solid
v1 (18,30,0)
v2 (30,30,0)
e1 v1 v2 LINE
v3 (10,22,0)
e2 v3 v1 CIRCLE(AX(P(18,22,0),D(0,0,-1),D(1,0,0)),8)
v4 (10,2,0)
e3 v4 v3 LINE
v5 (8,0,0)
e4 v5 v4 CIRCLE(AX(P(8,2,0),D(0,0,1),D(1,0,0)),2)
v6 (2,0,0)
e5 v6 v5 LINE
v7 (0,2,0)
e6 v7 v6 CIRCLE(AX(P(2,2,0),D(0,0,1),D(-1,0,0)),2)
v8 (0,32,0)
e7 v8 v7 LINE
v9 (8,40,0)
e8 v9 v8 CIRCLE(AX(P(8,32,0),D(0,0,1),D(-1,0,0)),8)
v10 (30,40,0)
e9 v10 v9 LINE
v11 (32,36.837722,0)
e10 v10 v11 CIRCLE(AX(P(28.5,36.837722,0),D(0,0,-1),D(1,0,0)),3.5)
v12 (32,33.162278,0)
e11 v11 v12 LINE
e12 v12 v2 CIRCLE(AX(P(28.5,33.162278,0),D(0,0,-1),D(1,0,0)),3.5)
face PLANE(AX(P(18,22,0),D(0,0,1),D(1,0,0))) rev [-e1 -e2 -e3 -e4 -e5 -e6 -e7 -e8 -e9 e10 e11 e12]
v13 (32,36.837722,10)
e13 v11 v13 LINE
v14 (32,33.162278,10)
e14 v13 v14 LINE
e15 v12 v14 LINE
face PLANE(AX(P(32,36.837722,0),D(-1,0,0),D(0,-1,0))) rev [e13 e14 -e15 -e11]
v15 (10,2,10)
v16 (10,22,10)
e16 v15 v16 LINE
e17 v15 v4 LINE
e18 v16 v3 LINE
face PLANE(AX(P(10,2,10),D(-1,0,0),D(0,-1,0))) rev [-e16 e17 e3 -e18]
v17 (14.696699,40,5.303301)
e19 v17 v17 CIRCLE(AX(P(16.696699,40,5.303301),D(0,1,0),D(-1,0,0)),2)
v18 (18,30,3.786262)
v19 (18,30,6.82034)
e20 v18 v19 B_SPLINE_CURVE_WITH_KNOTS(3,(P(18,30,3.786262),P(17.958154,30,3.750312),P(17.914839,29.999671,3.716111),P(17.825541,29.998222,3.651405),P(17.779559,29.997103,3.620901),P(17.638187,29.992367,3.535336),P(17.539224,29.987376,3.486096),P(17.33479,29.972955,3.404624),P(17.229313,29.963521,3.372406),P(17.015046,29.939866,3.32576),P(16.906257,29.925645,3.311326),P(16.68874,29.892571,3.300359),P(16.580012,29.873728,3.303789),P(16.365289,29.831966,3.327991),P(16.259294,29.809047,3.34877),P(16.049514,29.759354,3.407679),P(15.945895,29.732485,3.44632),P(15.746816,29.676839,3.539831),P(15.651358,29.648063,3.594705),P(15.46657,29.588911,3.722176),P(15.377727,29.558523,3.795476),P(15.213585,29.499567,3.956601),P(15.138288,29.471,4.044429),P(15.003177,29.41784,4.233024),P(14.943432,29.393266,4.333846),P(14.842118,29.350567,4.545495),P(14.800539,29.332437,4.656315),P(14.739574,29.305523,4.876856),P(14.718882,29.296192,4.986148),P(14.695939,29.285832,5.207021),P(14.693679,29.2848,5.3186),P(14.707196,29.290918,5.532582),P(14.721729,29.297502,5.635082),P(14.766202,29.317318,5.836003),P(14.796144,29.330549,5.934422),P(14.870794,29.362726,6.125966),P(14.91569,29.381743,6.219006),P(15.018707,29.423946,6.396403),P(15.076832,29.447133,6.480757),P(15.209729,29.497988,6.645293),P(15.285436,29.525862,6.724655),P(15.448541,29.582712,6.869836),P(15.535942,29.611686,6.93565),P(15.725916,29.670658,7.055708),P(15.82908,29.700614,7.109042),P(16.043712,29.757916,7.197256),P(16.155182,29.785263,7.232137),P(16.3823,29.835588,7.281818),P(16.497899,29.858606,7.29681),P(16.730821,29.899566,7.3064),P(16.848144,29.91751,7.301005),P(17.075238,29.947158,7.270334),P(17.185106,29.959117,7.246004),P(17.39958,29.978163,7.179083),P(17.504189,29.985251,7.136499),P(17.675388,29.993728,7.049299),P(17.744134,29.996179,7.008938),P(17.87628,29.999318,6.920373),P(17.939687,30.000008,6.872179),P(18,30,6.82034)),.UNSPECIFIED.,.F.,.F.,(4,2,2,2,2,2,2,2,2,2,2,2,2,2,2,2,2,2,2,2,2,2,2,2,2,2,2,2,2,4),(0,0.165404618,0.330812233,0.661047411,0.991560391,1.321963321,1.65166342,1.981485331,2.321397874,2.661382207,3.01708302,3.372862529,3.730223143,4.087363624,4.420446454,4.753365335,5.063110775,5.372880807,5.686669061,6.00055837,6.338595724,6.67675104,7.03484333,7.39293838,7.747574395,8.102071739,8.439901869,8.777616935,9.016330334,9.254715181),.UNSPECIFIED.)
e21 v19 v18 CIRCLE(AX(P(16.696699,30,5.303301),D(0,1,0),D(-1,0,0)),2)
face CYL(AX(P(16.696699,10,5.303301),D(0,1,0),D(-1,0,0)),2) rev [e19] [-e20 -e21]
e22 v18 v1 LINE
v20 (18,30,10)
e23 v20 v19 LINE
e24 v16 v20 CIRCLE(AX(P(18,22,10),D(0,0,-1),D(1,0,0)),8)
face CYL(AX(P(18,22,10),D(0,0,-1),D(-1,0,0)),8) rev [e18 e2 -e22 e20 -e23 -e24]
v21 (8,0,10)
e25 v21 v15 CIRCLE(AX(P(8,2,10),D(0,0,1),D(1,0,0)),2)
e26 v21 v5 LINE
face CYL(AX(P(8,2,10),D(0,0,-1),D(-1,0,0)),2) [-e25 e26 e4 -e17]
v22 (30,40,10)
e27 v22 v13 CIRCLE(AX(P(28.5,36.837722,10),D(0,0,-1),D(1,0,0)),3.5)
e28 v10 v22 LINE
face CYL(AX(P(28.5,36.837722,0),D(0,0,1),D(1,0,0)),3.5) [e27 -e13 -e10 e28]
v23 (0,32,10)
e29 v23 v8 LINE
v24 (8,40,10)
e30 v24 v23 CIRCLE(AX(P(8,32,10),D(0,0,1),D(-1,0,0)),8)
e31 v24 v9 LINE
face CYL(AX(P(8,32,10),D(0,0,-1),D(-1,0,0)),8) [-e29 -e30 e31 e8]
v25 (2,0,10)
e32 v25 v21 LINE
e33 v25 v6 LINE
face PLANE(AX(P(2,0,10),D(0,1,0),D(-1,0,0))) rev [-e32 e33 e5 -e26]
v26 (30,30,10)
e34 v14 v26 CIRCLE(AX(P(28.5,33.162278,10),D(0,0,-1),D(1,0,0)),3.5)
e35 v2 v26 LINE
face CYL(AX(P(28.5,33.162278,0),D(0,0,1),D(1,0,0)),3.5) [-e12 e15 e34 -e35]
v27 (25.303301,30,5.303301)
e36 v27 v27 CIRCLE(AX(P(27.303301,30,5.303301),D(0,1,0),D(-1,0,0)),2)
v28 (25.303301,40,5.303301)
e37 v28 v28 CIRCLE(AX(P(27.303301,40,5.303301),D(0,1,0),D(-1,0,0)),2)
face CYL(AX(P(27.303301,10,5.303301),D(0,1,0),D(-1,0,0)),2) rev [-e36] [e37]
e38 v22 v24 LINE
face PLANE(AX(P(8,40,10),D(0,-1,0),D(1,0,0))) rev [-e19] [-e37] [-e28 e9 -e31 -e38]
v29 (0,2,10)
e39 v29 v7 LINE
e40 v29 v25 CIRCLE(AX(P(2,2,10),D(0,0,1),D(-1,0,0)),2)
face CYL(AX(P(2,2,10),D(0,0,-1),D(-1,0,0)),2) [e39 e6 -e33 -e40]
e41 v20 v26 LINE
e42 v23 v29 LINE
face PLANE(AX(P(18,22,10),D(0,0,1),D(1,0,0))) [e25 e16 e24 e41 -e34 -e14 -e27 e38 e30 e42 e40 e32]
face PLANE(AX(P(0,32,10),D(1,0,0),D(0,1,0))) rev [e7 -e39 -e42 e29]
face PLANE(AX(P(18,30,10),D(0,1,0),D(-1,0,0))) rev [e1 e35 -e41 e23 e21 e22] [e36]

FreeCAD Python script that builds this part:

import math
import FreeCAD as App
import Part
import Sketcher

doc = App.newDocument("Part")
body = doc.addObject("PartDesign::Body", "Body")

# Sketch on XY plane
sketch1 = doc.addObject("Sketcher::SketchObject", "Sketch")
body.addObject(sketch1)
sketch1.AttachmentSupport = (doc.XY_Plane, [""])
sketch1.MapMode = "FlatFace"
sketch1.addGeometry(Part.LineSegment(App.Vector(2, 0, 0), App.Vector(8, 0, 0)), False)
sketch1.addGeometry(Part.ArcOfCircle(Part.Circle(App.Vector(8, 2, 0), App.Vector(0, 0, 1), 2), math.radians(-90), math.radians(0)), False)
sketch1.addGeometry(Part.LineSegment(App.Vector(10, 2, 0), App.Vector(10, 22, 0)), False)
sketch1.addGeometry(Part.ArcOfCircle(Part.Circle(App.Vector(18, 22, 0), App.Vector(0, 0, 1), 8), math.radians(90), math.radians(180)), False)
sketch1.addGeometry(Part.LineSegment(App.Vector(18, 30, 0), App.Vector(36, 30, 0)), False)
sketch1.addGeometry(Part.ArcOfCircle(Part.Circle(App.Vector(36, 34, 0), App.Vector(0, 0, 1), 4), math.radians(-90), math.radians(0)), False)
sketch1.addGeometry(Part.LineSegment(App.Vector(40, 34, 0), App.Vector(40, 36, 0)), False)
sketch1.addGeometry(Part.ArcOfCircle(Part.Circle(App.Vector(36, 36, 0), App.Vector(0, 0, 1), 4), math.radians(0), math.radians(90)), False)
sketch1.addGeometry(Part.LineSegment(App.Vector(36, 40, 0), App.Vector(8, 40, 0)), False)
sketch1.addGeometry(Part.ArcOfCircle(Part.Circle(App.Vector(8, 32, 0), App.Vector(0, 0, 1), 8), math.radians(90), math.radians(180)), False)
sketch1.addGeometry(Part.LineSegment(App.Vector(0, 32, 0), App.Vector(0, 2, 0)), False)
sketch1.addGeometry(Part.ArcOfCircle(Part.Circle(App.Vector(2, 2, 0), App.Vector(0, 0, 1), 2), math.radians(-180), math.radians(-90)), False)
sketch1.addConstraint(Sketcher.Constraint("Tangent", 0, 2, 1, 1))
sketch1.addConstraint(Sketcher.Constraint("Tangent", 1, 2, 2, 1))
sketch1.addConstraint(Sketcher.Constraint("Tangent", 2, 2, 3, 2))
sketch1.addConstraint(Sketcher.Constraint("Tangent", 3, 1, 4, 1))
sketch1.addConstraint(Sketcher.Constraint("Tangent", 4, 2, 5, 1))
sketch1.addConstraint(Sketcher.Constraint("Tangent", 5, 2, 6, 1))
sketch1.addConstraint(Sketcher.Constraint("Tangent", 6, 2, 7, 1))
sketch1.addConstraint(Sketcher.Constraint("Tangent", 7, 2, 8, 1))
sketch1.addConstraint(Sketcher.Constraint("Tangent", 8, 2, 9, 1))
sketch1.addConstraint(Sketcher.Constraint("Tangent", 9, 2, 10, 1))
sketch1.addConstraint(Sketcher.Constraint("Tangent", 10, 2, 11, 1))
sketch1.addConstraint(Sketcher.Constraint("Tangent", 11, 2, 0, 1))
sketch1.addConstraint(Sketcher.Constraint("Horizontal", 0))
sketch1.addConstraint(Sketcher.Constraint("Vertical", 2))
sketch1.addConstraint(Sketcher.Constraint("Horizontal", 4))
sketch1.addConstraint(Sketcher.Constraint("Vertical", 6))
sketch1.addConstraint(Sketcher.Constraint("Horizontal", 8))
sketch1.addConstraint(Sketcher.Constraint("Vertical", 10))
sketch1.addConstraint(Sketcher.Constraint("Equal", 5, 7))
sketch1.addConstraint(Sketcher.Constraint("Equal", 3, 9))
sketch1.addConstraint(Sketcher.Constraint("Equal", 1, 11))
sketch1.addConstraint(Sketcher.Constraint("PointOnObject", 0, 2, -1))
sketch1.addConstraint(Sketcher.Constraint("PointOnObject", 9, 2, -2))
sketch1.addConstraint(Sketcher.Constraint("Vertical", 1, 3, 9, 3))
sketch1.addConstraint(Sketcher.Constraint("Radius", 1, 2.0))
sketch1.addConstraint(Sketcher.Constraint("Radius", 3, 8.0))
sketch1.addConstraint(Sketcher.Constraint("Radius", 5, 4.0))
sketch1.addConstraint(Sketcher.Constraint("DistanceX", 4, 1, 4, 2, 18.0))
sketch1.addConstraint(Sketcher.Constraint("DistanceY", 2, 1, 2, 2, 20.0))
sketch1.addConstraint(Sketcher.Constraint("DistanceY", 6, 1, 6, 2, 2.0))
pad1 = doc.addObject("PartDesign::Pad", "Pad")
body.addObject(pad1)
pad1.Profile = sketch1
pad1.Length = 10

# Sketch on XZ plane
sketch2 = doc.addObject("Sketcher::SketchObject", "Sketch001")
body.addObject(sketch2)
sketch2.AttachmentSupport = (doc.XZ_Plane, [""])
sketch2.MapMode = "FlatFace"
sketch2.AttachmentOffset = App.Placement(App.Vector(0, 0, -40), App.Rotation())
sketch2.addGeometry(Part.Circle(App.Vector(16.696699, 5.303301, 0), App.Vector(0, 0, 1), 2), False)
sketch2.addGeometry(Part.Circle(App.Vector(27.303301, 5.303301, 0), App.Vector(0, 0, 1), 2), False)
sketch2.addConstraint(Sketcher.Constraint("Equal", 0, 1))
sketch2.addConstraint(Sketcher.Constraint("Horizontal", 0, 3, 1, 3))
sketch2.addConstraint(Sketcher.Constraint("Diameter", 0, 4.0))
sketch2.addConstraint(Sketcher.Constraint("DistanceX", -1, 1, 0, 3, 16.696699))
sketch2.addConstraint(Sketcher.Constraint("DistanceY", -1, 1, 0, 3, 5.303301))
sketch2.addConstraint(Sketcher.Constraint("DistanceX", -1, 1, 1, 3, 27.303301))
pocket1 = doc.addObject("PartDesign::Pocket", "Pocket")
body.addObject(pocket1)
pocket1.Profile = sketch2
pocket1.Length = 30
pocket1.Reversed = True

# Sketch on XY plane
sketch3 = doc.addObject("Sketcher::SketchObject", "Sketch002")
body.addObject(sketch3)
sketch3.AttachmentSupport = (doc.XY_Plane, [""])
sketch3.MapMode = "FlatFace"
sketch3.addGeometry(Part.LineSegment(App.Vector(32, 36.837722, 0), App.Vector(32, 33.162278, 0)), False)
sketch3.addGeometry(Part.ArcOfCircle(Part.Circle(App.Vector(28.5, 33.162278, 0), App.Vector(0, 0, 1), 3.5), math.radians(-64.623066), math.radians(0)), False)
sketch3.addGeometry(Part.LineSegment(App.Vector(30, 30, 0), App.Vector(36, 30, 0)), False)
sketch3.addGeometry(Part.ArcOfCircle(Part.Circle(App.Vector(36, 34, 0), App.Vector(0, 0, 1), 4), math.radians(-90), math.radians(0)), False)
sketch3.addGeometry(Part.LineSegment(App.Vector(40, 34, 0), App.Vector(40, 36, 0)), False)
sketch3.addGeometry(Part.ArcOfCircle(Part.Circle(App.Vector(36, 36, 0), App.Vector(0, 0, 1), 4), math.radians(0), math.radians(90)), False)
sketch3.addGeometry(Part.LineSegment(App.Vector(36, 40, 0), App.Vector(30, 40, 0)), False)
sketch3.addGeometry(Part.ArcOfCircle(Part.Circle(App.Vector(28.5, 36.837722, 0), App.Vector(0, 0, 1), 3.5), math.radians(0), math.radians(64.623066)), False)
sketch3.addConstraint(Sketcher.Constraint("Tangent", 0, 2, 1, 2))
sketch3.addConstraint(Sketcher.Constraint("Coincident", 1, 1, 2, 1))
sketch3.addConstraint(Sketcher.Constraint("Tangent", 2, 2, 3, 1))
sketch3.addConstraint(Sketcher.Constraint("Tangent", 3, 2, 4, 1))
sketch3.addConstraint(Sketcher.Constraint("Tangent", 4, 2, 5, 1))
sketch3.addConstraint(Sketcher.Constraint("Tangent", 5, 2, 6, 1))
sketch3.addConstraint(Sketcher.Constraint("Coincident", 6, 2, 7, 2))
sketch3.addConstraint(Sketcher.Constraint("Tangent", 7, 1, 0, 1))
sketch3.addConstraint(Sketcher.Constraint("Vertical", 0))
sketch3.addConstraint(Sketcher.Constraint("Horizontal", 2))
sketch3.addConstraint(Sketcher.Constraint("Vertical", 4))
sketch3.addConstraint(Sketcher.Constraint("Horizontal", 6))
sketch3.addConstraint(Sketcher.Constraint("Equal", 3, 5))
sketch3.addConstraint(Sketcher.Constraint("Equal", 1, 7))
sketch3.addConstraint(Sketcher.Constraint("Vertical", 1, 1, 6, 2))
sketch3.addConstraint(Sketcher.Constraint("Radius", 3, 4.0))
sketch3.addConstraint(Sketcher.Constraint("Radius", 1, 3.5))
sketch3.addConstraint(Sketcher.Constraint("DistanceX", 2, 1, 2, 2, 6.0))
sketch3.addConstraint(Sketcher.Constraint("DistanceY", 4, 1, 4, 2, 2.0))
sketch3.addConstraint(Sketcher.Constraint("DistanceX", -1, 1, 3, 3, 36.0))
sketch3.addConstraint(Sketcher.Constraint("DistanceY", -1, 1, 3, 3, 34.0))
sketch3.addConstraint(Sketcher.Constraint("DistanceX", -1, 1, 0, 2, 32.0))
pocket2 = doc.addObject("PartDesign::Pocket", "Pocket001")
body.addObject(pocket2)
pocket2.Profile = sketch3
pocket2.Length = 10
pocket2.Reversed = True

doc.recompute()
